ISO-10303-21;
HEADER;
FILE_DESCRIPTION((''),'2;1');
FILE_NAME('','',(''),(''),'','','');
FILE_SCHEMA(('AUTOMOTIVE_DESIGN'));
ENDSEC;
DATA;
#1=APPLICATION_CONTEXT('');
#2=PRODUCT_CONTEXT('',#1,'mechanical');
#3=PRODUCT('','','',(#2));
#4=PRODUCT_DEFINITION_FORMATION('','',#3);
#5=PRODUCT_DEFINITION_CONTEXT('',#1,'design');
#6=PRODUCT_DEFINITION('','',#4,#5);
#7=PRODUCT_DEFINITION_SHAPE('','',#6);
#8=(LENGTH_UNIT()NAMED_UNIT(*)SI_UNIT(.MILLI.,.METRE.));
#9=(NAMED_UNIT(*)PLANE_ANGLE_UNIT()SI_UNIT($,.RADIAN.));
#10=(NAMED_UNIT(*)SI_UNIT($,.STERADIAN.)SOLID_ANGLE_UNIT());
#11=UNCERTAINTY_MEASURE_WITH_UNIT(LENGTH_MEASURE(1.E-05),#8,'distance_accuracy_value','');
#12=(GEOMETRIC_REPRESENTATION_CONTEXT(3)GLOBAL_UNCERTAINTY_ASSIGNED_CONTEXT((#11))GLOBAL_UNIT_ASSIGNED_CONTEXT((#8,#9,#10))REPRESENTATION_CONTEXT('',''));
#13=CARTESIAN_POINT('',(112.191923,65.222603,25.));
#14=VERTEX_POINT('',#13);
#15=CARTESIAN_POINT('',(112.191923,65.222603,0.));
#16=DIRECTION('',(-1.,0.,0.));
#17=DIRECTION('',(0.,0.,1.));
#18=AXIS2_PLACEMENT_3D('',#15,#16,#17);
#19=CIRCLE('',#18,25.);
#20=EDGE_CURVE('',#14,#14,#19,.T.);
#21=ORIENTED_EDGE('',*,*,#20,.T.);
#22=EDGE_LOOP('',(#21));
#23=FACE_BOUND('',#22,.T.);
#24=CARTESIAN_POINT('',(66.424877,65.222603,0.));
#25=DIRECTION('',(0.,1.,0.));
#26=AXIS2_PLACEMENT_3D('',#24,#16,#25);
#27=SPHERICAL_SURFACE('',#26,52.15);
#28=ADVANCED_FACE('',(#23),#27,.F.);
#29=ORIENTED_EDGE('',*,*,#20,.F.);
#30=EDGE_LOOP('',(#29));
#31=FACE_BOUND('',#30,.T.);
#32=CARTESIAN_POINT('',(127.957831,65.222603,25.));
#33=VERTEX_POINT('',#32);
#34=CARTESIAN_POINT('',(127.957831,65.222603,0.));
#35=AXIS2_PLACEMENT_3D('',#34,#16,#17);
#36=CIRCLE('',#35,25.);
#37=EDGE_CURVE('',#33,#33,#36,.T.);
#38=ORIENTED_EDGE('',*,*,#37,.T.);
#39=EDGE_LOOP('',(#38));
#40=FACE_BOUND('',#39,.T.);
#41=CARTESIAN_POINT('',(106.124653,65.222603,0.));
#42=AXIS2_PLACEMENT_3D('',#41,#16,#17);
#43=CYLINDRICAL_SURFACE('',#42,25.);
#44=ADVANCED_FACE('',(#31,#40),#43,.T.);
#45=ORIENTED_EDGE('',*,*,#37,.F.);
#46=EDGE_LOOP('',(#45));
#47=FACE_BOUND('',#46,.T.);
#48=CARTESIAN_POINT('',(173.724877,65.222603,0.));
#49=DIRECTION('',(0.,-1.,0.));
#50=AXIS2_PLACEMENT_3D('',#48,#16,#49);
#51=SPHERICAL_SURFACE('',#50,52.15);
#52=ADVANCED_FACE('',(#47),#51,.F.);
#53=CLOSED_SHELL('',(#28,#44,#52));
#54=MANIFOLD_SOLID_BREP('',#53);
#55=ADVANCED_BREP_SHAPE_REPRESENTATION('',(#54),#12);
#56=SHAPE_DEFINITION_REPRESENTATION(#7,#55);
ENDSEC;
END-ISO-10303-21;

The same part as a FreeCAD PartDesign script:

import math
import FreeCAD as App
import Part
import Sketcher

V = App.Vector

doc = App.newDocument("Part")
params = doc.addObject("Spreadsheet::Sheet", "Params")
for row, (alias, value) in enumerate([
    ("sketch1_width", "3 mm"),
    ("sketch1_radius", "52.15 mm"),
    ("revolution_angle", "360 deg"),
], start=1):
    params.set(f"A{row}", alias)
    params.set(f"B{row}", "=" + value)
    params.setAlias(f"B{row}", alias)

body = doc.addObject("PartDesign::Body", "Body")

# Sketch on XY plane
sketch1 = body.newObject("Sketcher::SketchObject", "Sketch")
sketch1.AttachmentSupport = (doc.getObject("XY_Plane"), [""])
sketch1.MapMode = "FlatFace"
sketch1.addGeometry([
    Part.LineSegment(V(118.6, 65.2, 0), V(121.6, 65.2, 0)),
    Part.ArcOfCircle(Part.Circle(V(173.7, 65.2, 0), V(0, 0, 1), 52.1), math.radians(151), math.radians(180)),
    Part.LineSegment(V(128, 90.2, 0), V(112.2, 90.2, 0)),
    Part.ArcOfCircle(Part.Circle(V(66.4, 65.2, 0), V(0, 0, 1), 52.1), math.radians(0), math.radians(29)),
], False)
sketch1.addGeometry(Part.LineSegment(V(66.4, 65.2, 0), V(173.7, 65.2, 0)), True)  # axis
sketch1.addConstraint([
    Sketcher.Constraint("Coincident", 0, 2, 1, 2),
    Sketcher.Constraint("Coincident", 1, 1, 2, 1),
    Sketcher.Constraint("Coincident", 2, 2, 3, 2),
    Sketcher.Constraint("Coincident", 3, 1, 0, 1),
    Sketcher.Constraint("Horizontal", 0),
    Sketcher.Constraint("Horizontal", 2),
    Sketcher.Constraint("Horizontal", 4),
    Sketcher.Constraint("Coincident", 4, 1, 3, 3),
    Sketcher.Constraint("Coincident", 4, 2, 1, 3),
    Sketcher.Constraint("Equal", 1, 3),
    Sketcher.Constraint("Horizontal", 3, 3, 0, 2),
    Sketcher.Constraint("DistanceX", 0, 1, 0, 2, 3.0),
    Sketcher.Constraint("Radius", 1, 52.15),
    Sketcher.Constraint("DistanceY", 0, 2, 1, 1, 25.0),
    Sketcher.Constraint("DistanceX", -1, 1, 1, 1, 127.957831),
    Sketcher.Constraint("DistanceY", -1, 1, 1, 3, 65.222603),
])
sketch1.setExpression("Constraints[11]", "Params.sketch1_width")
sketch1.setExpression("Constraints[12]", "Params.sketch1_radius")
revolution = body.newObject("PartDesign::Revolution", "Revolution")
revolution.Profile = sketch1
revolution.ReferenceAxis = (sketch1, ["Axis0"])
revolution.setExpression("Angle", "Params.revolution_angle")

doc.recompute()
